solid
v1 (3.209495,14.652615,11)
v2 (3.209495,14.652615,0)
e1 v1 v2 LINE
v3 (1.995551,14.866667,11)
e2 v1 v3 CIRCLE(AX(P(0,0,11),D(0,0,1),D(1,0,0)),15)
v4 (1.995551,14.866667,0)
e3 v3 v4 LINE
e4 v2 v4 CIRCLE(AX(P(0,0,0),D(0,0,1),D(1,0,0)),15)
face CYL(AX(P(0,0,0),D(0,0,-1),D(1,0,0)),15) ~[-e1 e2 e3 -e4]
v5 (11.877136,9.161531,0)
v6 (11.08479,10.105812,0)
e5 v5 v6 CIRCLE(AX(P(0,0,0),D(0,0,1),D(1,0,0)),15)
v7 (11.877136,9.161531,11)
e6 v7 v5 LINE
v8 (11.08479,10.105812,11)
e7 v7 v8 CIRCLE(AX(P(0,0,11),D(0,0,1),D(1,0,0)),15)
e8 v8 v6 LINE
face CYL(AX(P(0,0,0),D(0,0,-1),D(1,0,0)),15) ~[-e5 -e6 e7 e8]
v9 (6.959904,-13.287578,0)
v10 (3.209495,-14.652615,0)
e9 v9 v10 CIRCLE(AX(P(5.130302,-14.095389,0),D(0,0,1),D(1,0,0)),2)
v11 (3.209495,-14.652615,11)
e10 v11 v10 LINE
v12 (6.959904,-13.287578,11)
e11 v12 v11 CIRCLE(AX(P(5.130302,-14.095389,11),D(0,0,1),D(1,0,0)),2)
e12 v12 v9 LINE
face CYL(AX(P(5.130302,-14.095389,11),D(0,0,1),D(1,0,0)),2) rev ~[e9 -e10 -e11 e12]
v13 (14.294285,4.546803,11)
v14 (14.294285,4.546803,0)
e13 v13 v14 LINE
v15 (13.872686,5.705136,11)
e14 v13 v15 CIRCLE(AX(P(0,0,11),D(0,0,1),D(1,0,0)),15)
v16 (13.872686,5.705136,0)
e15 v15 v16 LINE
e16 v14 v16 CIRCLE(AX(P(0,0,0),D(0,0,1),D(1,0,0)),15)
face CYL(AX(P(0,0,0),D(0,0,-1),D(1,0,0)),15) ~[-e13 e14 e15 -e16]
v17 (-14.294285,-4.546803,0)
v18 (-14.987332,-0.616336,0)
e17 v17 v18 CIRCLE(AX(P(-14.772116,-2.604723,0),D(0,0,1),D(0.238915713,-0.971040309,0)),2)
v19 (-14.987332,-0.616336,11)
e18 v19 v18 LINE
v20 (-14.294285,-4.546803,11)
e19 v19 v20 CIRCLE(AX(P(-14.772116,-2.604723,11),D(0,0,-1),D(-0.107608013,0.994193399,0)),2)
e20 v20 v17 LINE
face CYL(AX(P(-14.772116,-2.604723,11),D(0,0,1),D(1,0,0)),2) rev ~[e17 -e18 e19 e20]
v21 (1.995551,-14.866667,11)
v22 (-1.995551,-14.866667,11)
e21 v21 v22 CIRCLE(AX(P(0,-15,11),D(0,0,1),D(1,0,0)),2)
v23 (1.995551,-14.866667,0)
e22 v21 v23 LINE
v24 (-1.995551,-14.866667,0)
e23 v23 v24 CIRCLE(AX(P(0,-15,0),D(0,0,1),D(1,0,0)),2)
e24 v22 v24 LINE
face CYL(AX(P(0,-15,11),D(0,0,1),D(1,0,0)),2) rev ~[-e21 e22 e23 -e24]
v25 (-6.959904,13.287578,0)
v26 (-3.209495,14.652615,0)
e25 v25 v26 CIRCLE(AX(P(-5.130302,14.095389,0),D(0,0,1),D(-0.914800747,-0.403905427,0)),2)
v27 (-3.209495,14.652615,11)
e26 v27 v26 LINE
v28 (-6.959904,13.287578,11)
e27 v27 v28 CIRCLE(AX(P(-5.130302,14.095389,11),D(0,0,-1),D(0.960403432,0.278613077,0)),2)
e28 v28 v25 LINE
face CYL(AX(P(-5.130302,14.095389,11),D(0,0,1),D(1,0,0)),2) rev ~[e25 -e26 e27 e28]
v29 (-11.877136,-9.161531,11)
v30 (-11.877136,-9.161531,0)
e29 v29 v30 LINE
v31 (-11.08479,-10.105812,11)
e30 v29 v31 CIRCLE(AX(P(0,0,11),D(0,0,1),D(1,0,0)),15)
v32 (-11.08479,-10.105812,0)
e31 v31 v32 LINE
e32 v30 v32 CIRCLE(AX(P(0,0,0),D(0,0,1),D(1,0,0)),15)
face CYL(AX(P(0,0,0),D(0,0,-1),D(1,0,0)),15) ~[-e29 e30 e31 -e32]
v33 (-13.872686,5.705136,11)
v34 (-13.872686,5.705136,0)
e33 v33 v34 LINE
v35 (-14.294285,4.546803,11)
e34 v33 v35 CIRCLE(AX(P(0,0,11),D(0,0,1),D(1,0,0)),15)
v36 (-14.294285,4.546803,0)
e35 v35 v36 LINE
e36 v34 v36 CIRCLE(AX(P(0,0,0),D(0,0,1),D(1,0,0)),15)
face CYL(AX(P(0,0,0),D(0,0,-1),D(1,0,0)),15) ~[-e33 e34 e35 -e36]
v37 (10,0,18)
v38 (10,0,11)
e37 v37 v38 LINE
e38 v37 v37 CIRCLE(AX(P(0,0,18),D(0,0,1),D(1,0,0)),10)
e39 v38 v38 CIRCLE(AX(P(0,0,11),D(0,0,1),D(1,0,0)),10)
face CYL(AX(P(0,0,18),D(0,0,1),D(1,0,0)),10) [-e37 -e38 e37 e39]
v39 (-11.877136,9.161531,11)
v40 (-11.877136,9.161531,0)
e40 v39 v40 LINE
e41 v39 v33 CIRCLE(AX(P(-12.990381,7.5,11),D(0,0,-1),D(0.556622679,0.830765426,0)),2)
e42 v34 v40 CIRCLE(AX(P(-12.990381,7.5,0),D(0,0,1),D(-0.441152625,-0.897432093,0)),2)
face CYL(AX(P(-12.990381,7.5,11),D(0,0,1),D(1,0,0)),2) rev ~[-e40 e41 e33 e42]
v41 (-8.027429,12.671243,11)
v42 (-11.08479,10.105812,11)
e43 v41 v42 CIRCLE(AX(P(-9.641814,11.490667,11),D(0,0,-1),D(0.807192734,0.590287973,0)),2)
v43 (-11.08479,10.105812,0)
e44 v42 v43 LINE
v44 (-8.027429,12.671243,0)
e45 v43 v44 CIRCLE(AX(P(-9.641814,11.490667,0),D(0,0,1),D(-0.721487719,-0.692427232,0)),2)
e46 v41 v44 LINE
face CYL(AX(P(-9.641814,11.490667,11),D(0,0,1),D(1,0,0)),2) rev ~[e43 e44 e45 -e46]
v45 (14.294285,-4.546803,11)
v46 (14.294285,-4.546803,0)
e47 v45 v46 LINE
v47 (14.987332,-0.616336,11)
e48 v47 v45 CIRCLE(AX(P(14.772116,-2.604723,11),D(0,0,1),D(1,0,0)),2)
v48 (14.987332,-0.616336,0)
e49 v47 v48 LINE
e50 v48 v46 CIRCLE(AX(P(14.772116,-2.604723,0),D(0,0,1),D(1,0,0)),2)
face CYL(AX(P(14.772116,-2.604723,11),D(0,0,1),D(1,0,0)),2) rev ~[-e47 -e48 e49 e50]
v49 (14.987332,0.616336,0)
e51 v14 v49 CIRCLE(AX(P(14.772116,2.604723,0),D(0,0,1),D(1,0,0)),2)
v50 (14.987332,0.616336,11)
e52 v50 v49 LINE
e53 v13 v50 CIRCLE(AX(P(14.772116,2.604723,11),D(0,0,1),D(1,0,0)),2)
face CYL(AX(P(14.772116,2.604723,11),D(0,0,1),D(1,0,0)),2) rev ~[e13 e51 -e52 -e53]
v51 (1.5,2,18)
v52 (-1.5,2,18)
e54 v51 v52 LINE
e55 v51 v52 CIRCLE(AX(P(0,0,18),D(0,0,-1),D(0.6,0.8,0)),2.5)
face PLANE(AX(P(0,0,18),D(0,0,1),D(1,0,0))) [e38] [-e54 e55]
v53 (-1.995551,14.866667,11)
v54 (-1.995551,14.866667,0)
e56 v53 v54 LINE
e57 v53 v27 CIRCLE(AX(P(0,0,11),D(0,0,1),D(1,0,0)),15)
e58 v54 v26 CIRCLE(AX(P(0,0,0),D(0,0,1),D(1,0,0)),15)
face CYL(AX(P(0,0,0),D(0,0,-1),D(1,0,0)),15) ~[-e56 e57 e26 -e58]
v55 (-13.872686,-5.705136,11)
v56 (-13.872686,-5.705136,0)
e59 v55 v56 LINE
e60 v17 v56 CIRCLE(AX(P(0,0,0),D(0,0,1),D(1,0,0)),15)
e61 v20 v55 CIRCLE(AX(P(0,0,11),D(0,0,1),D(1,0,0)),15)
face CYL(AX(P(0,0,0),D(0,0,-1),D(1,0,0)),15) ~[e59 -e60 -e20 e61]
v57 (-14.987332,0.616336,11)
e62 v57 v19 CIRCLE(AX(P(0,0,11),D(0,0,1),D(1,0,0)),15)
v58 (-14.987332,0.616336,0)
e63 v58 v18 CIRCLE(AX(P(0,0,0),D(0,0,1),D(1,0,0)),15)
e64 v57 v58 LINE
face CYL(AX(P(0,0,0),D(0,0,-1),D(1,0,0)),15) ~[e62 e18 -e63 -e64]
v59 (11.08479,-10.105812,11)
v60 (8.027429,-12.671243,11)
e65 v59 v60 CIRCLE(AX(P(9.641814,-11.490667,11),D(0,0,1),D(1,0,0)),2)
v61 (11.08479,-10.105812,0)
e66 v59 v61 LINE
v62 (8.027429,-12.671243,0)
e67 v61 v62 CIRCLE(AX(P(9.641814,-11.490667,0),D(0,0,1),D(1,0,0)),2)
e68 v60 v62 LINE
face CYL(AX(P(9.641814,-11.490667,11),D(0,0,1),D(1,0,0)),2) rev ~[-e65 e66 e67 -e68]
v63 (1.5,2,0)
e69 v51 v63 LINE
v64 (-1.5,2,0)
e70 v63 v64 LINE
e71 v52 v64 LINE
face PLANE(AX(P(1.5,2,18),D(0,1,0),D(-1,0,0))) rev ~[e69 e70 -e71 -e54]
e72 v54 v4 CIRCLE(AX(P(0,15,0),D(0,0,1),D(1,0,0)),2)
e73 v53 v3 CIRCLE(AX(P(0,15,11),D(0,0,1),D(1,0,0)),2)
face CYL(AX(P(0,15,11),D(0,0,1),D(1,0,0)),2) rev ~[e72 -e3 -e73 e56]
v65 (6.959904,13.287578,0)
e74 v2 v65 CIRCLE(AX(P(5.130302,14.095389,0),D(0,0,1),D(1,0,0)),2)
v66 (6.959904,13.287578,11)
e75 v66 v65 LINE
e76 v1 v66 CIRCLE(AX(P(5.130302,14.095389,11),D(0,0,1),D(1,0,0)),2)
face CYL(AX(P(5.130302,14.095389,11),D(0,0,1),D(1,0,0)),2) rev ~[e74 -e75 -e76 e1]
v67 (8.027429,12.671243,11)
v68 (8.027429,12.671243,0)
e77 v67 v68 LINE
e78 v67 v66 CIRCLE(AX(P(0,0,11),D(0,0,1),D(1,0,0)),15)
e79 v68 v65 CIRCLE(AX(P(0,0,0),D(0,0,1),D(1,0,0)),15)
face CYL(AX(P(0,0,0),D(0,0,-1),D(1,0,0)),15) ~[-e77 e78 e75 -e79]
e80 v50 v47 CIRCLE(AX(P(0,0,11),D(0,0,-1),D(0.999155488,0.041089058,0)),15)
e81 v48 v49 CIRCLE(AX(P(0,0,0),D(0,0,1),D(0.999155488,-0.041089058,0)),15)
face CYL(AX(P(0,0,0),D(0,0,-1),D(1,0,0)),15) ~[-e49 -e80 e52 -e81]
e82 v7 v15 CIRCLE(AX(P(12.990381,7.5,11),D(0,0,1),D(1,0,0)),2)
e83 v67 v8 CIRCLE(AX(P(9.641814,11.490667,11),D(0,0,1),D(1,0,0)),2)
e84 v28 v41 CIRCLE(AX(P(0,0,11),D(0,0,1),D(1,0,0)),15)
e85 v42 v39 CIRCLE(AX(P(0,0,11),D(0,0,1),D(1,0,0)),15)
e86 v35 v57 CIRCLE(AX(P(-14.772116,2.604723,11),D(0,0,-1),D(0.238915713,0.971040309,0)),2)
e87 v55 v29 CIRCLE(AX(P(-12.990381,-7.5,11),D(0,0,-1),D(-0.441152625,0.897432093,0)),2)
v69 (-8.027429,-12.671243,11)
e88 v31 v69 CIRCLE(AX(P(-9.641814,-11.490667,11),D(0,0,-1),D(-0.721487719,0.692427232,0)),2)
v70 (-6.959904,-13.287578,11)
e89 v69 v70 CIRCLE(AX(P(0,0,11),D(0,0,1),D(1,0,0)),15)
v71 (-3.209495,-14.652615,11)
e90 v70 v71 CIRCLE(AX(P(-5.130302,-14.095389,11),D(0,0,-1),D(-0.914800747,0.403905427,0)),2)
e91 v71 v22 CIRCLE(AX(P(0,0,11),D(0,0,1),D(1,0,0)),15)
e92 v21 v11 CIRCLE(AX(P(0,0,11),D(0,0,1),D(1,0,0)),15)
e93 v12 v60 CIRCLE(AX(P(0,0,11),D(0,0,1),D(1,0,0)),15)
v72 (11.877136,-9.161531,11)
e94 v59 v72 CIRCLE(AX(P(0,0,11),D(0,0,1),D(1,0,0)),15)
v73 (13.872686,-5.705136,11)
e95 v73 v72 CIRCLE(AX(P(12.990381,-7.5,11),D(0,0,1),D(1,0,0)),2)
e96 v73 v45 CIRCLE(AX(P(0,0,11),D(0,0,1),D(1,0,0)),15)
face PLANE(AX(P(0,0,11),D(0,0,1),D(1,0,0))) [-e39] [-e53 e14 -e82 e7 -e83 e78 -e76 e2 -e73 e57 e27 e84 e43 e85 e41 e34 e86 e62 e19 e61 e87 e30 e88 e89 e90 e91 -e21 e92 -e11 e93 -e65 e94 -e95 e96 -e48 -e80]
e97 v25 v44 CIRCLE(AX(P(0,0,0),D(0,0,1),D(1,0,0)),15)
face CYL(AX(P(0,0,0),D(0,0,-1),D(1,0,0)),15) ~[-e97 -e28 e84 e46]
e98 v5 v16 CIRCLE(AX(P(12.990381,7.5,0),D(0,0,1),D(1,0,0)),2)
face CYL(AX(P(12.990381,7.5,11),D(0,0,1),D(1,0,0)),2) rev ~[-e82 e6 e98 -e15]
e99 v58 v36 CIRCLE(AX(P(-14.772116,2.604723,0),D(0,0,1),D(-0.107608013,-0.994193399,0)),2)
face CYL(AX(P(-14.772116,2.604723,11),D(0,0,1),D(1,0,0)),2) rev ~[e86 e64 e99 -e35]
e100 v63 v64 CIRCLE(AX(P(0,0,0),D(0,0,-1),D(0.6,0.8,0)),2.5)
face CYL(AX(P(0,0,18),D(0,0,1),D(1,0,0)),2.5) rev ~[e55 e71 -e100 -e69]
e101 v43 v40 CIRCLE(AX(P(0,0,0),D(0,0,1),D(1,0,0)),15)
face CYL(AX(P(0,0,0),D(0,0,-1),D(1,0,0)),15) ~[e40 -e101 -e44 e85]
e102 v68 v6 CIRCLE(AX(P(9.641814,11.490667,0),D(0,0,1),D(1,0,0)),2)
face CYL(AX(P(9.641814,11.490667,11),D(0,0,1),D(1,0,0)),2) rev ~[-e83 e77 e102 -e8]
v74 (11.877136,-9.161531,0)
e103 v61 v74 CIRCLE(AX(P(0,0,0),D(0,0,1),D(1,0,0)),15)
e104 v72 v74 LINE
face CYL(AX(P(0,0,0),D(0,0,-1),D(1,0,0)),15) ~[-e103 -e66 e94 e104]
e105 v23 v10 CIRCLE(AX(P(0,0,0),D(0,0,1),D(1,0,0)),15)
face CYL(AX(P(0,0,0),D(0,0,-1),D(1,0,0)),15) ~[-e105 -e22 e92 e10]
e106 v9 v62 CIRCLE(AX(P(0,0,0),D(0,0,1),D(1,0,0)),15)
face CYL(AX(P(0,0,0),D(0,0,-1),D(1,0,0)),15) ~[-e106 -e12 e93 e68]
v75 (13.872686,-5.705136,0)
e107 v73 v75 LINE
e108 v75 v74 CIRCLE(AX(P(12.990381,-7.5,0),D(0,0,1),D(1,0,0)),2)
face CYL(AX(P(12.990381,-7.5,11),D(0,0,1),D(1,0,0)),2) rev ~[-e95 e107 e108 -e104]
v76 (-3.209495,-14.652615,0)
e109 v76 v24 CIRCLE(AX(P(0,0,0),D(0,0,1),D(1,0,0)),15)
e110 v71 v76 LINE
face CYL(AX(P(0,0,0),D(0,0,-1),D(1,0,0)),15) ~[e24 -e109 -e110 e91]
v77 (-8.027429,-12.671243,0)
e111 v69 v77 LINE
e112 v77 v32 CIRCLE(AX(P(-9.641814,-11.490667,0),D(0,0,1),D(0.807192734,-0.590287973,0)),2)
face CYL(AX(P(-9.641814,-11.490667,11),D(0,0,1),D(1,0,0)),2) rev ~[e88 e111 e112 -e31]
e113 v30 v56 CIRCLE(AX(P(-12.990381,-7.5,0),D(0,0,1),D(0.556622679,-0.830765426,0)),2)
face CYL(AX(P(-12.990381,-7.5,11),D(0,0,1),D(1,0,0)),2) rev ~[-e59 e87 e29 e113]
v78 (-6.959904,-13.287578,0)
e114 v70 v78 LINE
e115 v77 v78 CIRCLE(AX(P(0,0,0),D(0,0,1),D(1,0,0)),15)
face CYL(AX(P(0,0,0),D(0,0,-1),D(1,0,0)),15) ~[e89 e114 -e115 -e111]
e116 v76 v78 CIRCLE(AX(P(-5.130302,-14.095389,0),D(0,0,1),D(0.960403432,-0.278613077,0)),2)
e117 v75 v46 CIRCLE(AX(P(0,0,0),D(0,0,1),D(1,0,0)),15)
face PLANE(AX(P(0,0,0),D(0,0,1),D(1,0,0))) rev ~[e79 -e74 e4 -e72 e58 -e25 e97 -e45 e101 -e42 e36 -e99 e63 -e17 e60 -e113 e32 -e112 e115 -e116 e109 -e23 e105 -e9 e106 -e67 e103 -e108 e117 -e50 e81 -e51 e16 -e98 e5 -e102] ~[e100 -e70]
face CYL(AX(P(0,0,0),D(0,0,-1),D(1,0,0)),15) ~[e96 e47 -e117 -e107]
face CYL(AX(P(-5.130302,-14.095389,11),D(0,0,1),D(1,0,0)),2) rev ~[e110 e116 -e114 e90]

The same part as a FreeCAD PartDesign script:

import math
import FreeCAD as App
import Part
import Sketcher
from FreeCAD import Vector

doc = App.newDocument("Part")
params = doc.addObject("Spreadsheet::Sheet", "Params")
for row, (alias, value) in enumerate([
    ("sketch1_diameter", "30 mm"),
    ("pad1_length", "11 mm"),
    ("sketch2_diameter", "4 mm"),
    ("pocket1_length", "11 mm"),
    ("sketch3_diameter", "5 mm"),
    ("pocket2_length", "11 mm"),
    ("sketch4_diameter", "20 mm"),
    ("sketch4_diameter2", "5 mm"),
    ("pad2_length", "7 mm"),
    ("sketch5_radius", "2.5 mm"),
    ("sketch5_width", "3 mm"),
    ("pad3_length", "18 mm"),
], start=1):
    params.set(f"A{row}", alias)
    params.set(f"B{row}", "=" + value)
    params.setAlias(f"B{row}", alias)

body = doc.addObject("PartDesign::Body", "Body")

sketch1 = body.newObject("Sketcher::SketchObject", "Sketch")
sketch1.AttachmentSupport = (doc.getObject("XY_Plane"), [""])
sketch1.MapMode = "FlatFace"
sketch1.addGeometry(Part.Circle(Vector(0, 0, 0), Vector(0, 0, 1), 15), False)
sketch1.addConstraint(Sketcher.Constraint("Coincident", 0, 3, -1, 1))
sketch1.addConstraint(Sketcher.Constraint("Diameter", 0, 30.0))
sketch1.setExpression("Constraints[1]", "Params.sketch1_diameter")
pad1 = body.newObject("PartDesign::Pad", "Pad")
pad1.Profile = sketch1
pad1.setExpression("Length", "Params.pad1_length")

sketch2 = body.newObject("Sketcher::SketchObject", "Sketch001")
sketch2.AttachmentSupport = (doc.getObject("XY_Plane"), [""])
sketch2.MapMode = "FlatFace"
sketch2.AttachmentOffset = App.Placement(Vector(0, 0, 11), App.Rotation())
sketch2.addGeometry(Part.Circle(Vector(0, 15, 0), Vector(0, 0, 1), 2), False)
sketch2.addGeometry(Part.Circle(Vector(5.1, 14.1, 0), Vector(0, 0, 1), 2), False)
sketch2.addGeometry(Part.Circle(Vector(9.6, 11.5, 0), Vector(0, 0, 1), 2), False)
sketch2.addGeometry(Part.Circle(Vector(13, 7.5, 0), Vector(0, 0, 1), 2), False)
sketch2.addGeometry(Part.Circle(Vector(14.8, 2.6, 0), Vector(0, 0, 1), 2), False)
sketch2.addGeometry(Part.Circle(Vector(14.8, -2.6, 0), Vector(0, 0, 1), 2), False)
sketch2.addGeometry(Part.Circle(Vector(13, -7.5, 0), Vector(0, 0, 1), 2), False)
sketch2.addGeometry(Part.Circle(Vector(9.6, -11.5, 0), Vector(0, 0, 1), 2), False)
sketch2.addGeometry(Part.Circle(Vector(5.1, -14.1, 0), Vector(0, 0, 1), 2), False)
sketch2.addGeometry(Part.Circle(Vector(0, -15, 0), Vector(0, 0, 1), 2), False)
sketch2.addGeometry(Part.Circle(Vector(-5.1, -14.1, 0), Vector(0, 0, 1), 2), False)
sketch2.addGeometry(Part.Circle(Vector(-9.6, -11.5, 0), Vector(0, 0, 1), 2), False)
sketch2.addGeometry(Part.Circle(Vector(-13, -7.5, 0), Vector(0, 0, 1), 2), False)
sketch2.addGeometry(Part.Circle(Vector(-14.8, -2.6, 0), Vector(0, 0, 1), 2), False)
sketch2.addGeometry(Part.Circle(Vector(-14.8, 2.6, 0), Vector(0, 0, 1), 2), False)
sketch2.addGeometry(Part.Circle(Vector(-13, 7.5, 0), Vector(0, 0, 1), 2), False)
sketch2.addGeometry(Part.Circle(Vector(-9.6, 11.5, 0), Vector(0, 0, 1), 2), False)
sketch2.addGeometry(Part.Circle(Vector(-5.1, 14.1, 0), Vector(0, 0, 1), 2), False)
sketch2.addConstraint(Sketcher.Constraint("Equal", 0, 1))
sketch2.addConstraint(Sketcher.Constraint("Equal", 1, 2))
sketch2.addConstraint(Sketcher.Constraint("Equal", 2, 3))
sketch2.addConstraint(Sketcher.Constraint("Equal", 3, 4))
sketch2.addConstraint(Sketcher.Constraint("Equal", 4, 5))
sketch2.addConstraint(Sketcher.Constraint("Equal", 5, 6))
sketch2.addConstraint(Sketcher.Constraint("Equal", 6, 7))
sketch2.addConstraint(Sketcher.Constraint("Equal", 7, 8))
sketch2.addConstraint(Sketcher.Constraint("Equal", 8, 9))
sketch2.addConstraint(Sketcher.Constraint("Equal", 9, 10))
sketch2.addConstraint(Sketcher.Constraint("Equal", 10, 11))
sketch2.addConstraint(Sketcher.Constraint("Equal", 11, 12))
sketch2.addConstraint(Sketcher.Constraint("Equal", 12, 13))
sketch2.addConstraint(Sketcher.Constraint("Equal", 13, 14))
sketch2.addConstraint(Sketcher.Constraint("Equal", 14, 15))
sketch2.addConstraint(Sketcher.Constraint("Equal", 15, 16))
sketch2.addConstraint(Sketcher.Constraint("Equal", 16, 17))
sketch2.addConstraint(Sketcher.Constraint("Symmetric", 0, 3, 9, 3, -1, 1))
sketch2.addConstraint(Sketcher.Constraint("Symmetric", 1, 3, 10, 3, -1, 1))
sketch2.addConstraint(Sketcher.Constraint("Symmetric", 2, 3, 11, 3, -1, 1))
sketch2.addConstraint(Sketcher.Constraint("Symmetric", 3, 3, 12, 3, -1, 1))
sketch2.addConstraint(Sketcher.Constraint("Symmetric", 4, 3, 13, 3, -1, 1))
sketch2.addConstraint(Sketcher.Constraint("Symmetric", 5, 3, 14, 3, -1, 1))
sketch2.addConstraint(Sketcher.Constraint("Symmetric", 6, 3, 15, 3, -1, 1))
sketch2.addConstraint(Sketcher.Constraint("Symmetric", 7, 3, 16, 3, -1, 1))
sketch2.addConstraint(Sketcher.Constraint("Symmetric", 8, 3, 17, 3, -1, 1))
sketch2.addConstraint(Sketcher.Constraint("Symmetric", 8, 3, 10, 3, -2))
sketch2.addConstraint(Sketcher.Constraint("Symmetric", 7, 3, 11, 3, -2))
sketch2.addConstraint(Sketcher.Constraint("Symmetric", 6, 3, 12, 3, -2))
sketch2.addConstraint(Sketcher.Constraint("Symmetric", 5, 3, 13, 3, -2))
sketch2.addConstraint(Sketcher.Constraint("PointOnObject", 0, 3, -2))
sketch2.addConstraint(Sketcher.Constraint("Diameter", 0, 4.0))
sketch2.addConstraint(Sketcher.Constraint("DistanceY", -1, 1, 0, 3, 15.0))
sketch2.addConstraint(Sketcher.Constraint("DistanceY", 6, 3, 3, 3, 15.0))
sketch2.addConstraint(Sketcher.Constraint("DistanceY", -1, 1, 1, 3, 14.095389))
sketch2.addConstraint(Sketcher.Constraint("DistanceX", -1, 1, 3, 3, 12.990381))
sketch2.addConstraint(Sketcher.Constraint("DistanceX", 1, 3, 2, 3, 4.511512))
sketch2.addConstraint(Sketcher.Constraint("DistanceX", 1, 3, 3, 3, 7.860079))
sketch2.addConstraint(Sketcher.Constraint("DistanceY", 5, 3, 2, 3, 14.095389))
sketch2.addConstraint(Sketcher.Constraint("DistanceY", 5, 3, 1, 3, 16.700112))
sketch2.addConstraint(Sketcher.Constraint("DistanceX", 10, 3, 5, 3, 19.902418))
sketch2.setExpression("Constraints[31]", "Params.sketch2_diameter")
pocket1 = body.newObject("PartDesign::Pocket", "Pocket")
pocket1.Profile = sketch2
pocket1.setExpression("Length", "Params.pocket1_length")

sketch3 = body.newObject("Sketcher::SketchObject", "Sketch002")
sketch3.AttachmentSupport = (doc.getObject("XY_Plane"), [""])
sketch3.MapMode = "FlatFace"
sketch3.AttachmentOffset = App.Placement(Vector(0, 0, 11), App.Rotation())
sketch3.addGeometry(Part.Circle(Vector(0, 0, 0), Vector(0, 0, 1), 2.5), False)
sketch3.addConstraint(Sketcher.Constraint("Coincident", 0, 3, -1, 1))
sketch3.addConstraint(Sketcher.Constraint("Diameter", 0, 5.0))
sketch3.setExpression("Constraints[1]", "Params.sketch3_diameter")
pocket2 = body.newObject("PartDesign::Pocket", "Pocket001")
pocket2.Profile = sketch3
pocket2.setExpression("Length", "Params.pocket2_length")

sketch4 = body.newObject("Sketcher::SketchObject", "Sketch003")
sketch4.AttachmentSupport = (doc.getObject("XY_Plane"), [""])
sketch4.MapMode = "FlatFace"
sketch4.AttachmentOffset = App.Placement(Vector(0, 0, 18), App.Rotation())
sketch4.addGeometry(Part.Circle(Vector(0, 0, 0), Vector(0, 0, 1), 10), False)
sketch4.addGeometry(Part.Circle(Vector(0, 0, 0), Vector(0, 0, 1), 2.5), False)
sketch4.addConstraint(Sketcher.Constraint("Coincident", 0, 3, -1, 1))
sketch4.addConstraint(Sketcher.Constraint("Coincident", 1, 3, -1, 1))
sketch4.addConstraint(Sketcher.Constraint("Diameter", 0, 20.0))
sketch4.addConstraint(Sketcher.Constraint("Diameter", 1, 5.0))
sketch4.setExpression("Constraints[2]", "Params.sketch4_diameter")
sketch4.setExpression("Constraints[3]", "Params.sketch4_diameter2")
pad2 = body.newObject("PartDesign::Pad", "Pad001")
pad2.Profile = sketch4
pad2.setExpression("Length", "Params.pad2_length")
pad2.Reversed = True

sketch5 = body.newObject("Sketcher::SketchObject", "Sketch004")
sketch5.AttachmentSupport = (doc.getObject("XY_Plane"), [""])
sketch5.MapMode = "FlatFace"
sketch5.AttachmentOffset = App.Placement(Vector(0, 0, 18), App.Rotation())
sketch5.addGeometry(Part.LineSegment(Vector(-1.5, 2, 0), Vector(1.5, 2, 0)), False)
sketch5.addGeometry(Part.ArcOfCircle(Part.Circle(Vector(0, 0, 0), Vector(0, 0, 1), 2.5), math.radians(53), math.radians(127)), False)
sketch5.addConstraint(Sketcher.Constraint("Coincident", 0, 1, 1, 2))
sketch5.addConstraint(Sketcher.Constraint("Coincident", 1, 1, 0, 2))
sketch5.addConstraint(Sketcher.Constraint("Horizontal", 0))
sketch5.addConstraint(Sketcher.Constraint("Coincident", 1, 3, -1, 1))
sketch5.addConstraint(Sketcher.Constraint("Radius", 1, 2.5))
sketch5.addConstraint(Sketcher.Constraint("DistanceX", 0, 1, 0, 2, 3.0))
sketch5.setExpression("Constraints[4]", "Params.sketch5_radius")
sketch5.setExpression("Constraints[5]", "Params.sketch5_width")
pad3 = body.newObject("PartDesign::Pad", "Pad002")
pad3.Profile = sketch5
pad3.setExpression("Length", "Params.pad3_length")
pad3.Reversed = True

doc.recompute()
